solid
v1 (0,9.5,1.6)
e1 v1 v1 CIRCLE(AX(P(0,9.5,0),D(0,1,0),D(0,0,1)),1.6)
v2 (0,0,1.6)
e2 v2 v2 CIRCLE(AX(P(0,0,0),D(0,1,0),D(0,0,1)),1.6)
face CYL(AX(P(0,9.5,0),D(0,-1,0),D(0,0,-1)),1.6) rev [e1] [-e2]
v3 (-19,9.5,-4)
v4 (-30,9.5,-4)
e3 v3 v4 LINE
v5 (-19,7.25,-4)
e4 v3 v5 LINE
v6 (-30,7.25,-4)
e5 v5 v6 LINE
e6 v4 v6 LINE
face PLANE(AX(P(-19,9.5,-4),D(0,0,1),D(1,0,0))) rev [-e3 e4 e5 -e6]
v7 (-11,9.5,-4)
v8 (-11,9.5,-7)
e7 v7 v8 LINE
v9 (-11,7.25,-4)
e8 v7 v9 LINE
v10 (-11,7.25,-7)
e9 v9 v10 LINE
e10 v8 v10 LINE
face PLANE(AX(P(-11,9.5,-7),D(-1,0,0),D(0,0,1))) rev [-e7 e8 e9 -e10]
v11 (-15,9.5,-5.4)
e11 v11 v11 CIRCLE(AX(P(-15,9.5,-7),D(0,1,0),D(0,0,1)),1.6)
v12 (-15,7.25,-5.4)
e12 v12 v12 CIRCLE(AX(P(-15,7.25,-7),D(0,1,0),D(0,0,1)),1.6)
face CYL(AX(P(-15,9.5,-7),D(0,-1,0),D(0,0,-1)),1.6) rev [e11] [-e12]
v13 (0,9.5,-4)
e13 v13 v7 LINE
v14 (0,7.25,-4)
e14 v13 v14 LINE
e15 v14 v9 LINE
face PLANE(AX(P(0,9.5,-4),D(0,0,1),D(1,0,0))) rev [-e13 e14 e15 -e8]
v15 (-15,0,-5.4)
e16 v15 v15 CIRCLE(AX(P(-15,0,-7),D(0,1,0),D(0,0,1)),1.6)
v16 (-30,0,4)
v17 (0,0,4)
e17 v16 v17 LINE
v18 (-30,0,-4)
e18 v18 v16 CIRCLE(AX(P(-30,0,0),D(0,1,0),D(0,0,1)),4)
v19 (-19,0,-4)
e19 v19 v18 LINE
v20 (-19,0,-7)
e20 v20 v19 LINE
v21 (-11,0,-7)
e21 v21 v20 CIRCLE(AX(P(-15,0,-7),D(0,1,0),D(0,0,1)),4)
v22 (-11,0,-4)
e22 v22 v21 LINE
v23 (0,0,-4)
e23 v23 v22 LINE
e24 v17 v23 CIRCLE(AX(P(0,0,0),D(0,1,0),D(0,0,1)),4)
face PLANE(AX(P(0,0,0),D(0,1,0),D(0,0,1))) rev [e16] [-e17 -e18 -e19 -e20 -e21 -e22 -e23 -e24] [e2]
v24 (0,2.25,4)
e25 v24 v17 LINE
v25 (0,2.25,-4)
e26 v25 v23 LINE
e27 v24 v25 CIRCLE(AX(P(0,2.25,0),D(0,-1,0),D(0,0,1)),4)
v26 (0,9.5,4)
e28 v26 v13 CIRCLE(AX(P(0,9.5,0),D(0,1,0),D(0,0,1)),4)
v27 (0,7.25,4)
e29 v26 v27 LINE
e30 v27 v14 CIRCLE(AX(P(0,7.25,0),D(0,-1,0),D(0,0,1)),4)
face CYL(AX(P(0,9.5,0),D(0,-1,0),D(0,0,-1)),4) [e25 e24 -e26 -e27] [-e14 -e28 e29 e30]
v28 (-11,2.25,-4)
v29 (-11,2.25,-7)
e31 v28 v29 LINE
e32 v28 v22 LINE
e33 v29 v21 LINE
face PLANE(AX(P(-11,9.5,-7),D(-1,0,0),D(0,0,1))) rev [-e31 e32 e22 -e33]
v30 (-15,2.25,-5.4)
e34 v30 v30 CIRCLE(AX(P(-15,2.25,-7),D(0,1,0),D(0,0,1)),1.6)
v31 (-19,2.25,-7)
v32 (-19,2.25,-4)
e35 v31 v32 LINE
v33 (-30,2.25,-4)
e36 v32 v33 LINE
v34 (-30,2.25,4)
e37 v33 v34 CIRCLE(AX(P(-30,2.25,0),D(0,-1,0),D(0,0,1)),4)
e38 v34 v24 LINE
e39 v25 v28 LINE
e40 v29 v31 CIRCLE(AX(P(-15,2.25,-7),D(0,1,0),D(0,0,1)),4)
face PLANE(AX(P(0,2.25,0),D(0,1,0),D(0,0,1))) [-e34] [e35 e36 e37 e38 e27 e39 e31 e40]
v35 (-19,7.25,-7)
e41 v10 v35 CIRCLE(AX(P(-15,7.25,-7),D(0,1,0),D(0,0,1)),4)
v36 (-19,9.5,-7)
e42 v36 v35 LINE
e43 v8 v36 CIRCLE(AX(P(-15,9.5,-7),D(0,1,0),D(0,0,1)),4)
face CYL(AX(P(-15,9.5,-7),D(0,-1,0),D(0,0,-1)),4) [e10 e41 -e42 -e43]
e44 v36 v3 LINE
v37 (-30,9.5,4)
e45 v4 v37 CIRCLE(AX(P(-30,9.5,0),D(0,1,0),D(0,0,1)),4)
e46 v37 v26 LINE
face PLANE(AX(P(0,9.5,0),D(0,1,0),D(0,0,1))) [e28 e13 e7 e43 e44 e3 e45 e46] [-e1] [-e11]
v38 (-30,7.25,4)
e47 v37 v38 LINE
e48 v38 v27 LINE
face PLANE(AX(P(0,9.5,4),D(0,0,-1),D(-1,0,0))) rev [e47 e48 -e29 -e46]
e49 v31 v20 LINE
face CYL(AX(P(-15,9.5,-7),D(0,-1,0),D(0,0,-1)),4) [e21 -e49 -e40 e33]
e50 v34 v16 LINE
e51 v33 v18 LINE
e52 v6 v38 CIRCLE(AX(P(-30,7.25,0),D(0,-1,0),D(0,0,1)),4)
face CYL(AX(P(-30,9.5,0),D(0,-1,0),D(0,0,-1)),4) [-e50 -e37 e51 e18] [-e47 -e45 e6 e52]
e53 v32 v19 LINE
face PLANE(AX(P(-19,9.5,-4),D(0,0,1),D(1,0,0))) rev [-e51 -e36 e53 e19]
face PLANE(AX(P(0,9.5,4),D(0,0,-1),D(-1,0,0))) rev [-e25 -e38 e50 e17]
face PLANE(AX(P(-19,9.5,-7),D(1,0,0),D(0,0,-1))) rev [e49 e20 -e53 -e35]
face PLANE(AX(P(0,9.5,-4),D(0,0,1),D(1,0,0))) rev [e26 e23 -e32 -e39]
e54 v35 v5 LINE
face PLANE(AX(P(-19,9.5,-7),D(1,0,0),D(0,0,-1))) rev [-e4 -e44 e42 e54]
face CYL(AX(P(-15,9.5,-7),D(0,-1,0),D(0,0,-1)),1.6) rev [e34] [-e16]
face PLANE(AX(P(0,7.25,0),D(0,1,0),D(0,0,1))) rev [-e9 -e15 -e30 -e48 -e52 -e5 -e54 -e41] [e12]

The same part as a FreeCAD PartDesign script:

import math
import FreeCAD as App
import Part
import Sketcher

V = App.Vector
Q = App.Units.Quantity

doc = App.newDocument("Part")
body = doc.addObject("PartDesign::Body", "Body")

sketch1 = body.newObject("Sketcher::SketchObject", "Sketch")
sketch1.AttachmentSupport = (doc.getObject("XZ_Plane"), [""])
sketch1.MapMode = "FlatFace"
sketch1.addGeometry(Part.LineSegment(V(-30, 4, 0), V(0, 4, 0)), False)
sketch1.addGeometry(Part.ArcOfCircle(Part.Circle(V(0, 0, 0), V(0, 0, 1), 4), math.radians(-90), math.radians(90)), False)
sketch1.addGeometry(Part.LineSegment(V(0, -4, 0), V(-11, -4, 0)), False)
sketch1.addGeometry(Part.LineSegment(V(-11, -4, 0), V(-11, -7, 0)), False)
sketch1.addGeometry(Part.ArcOfCircle(Part.Circle(V(-15, -7, 0), V(0, 0, 1), 4), math.radians(180), math.radians(360)), False)
sketch1.addGeometry(Part.LineSegment(V(-19, -7, 0), V(-19, -4, 0)), False)
sketch1.addGeometry(Part.LineSegment(V(-19, -4, 0), V(-30, -4, 0)), False)
sketch1.addGeometry(Part.ArcOfCircle(Part.Circle(V(-30, 0, 0), V(0, 0, 1), 4), math.radians(90), math.radians(270)), False)
sketch1.addGeometry(Part.Circle(V(0, 0, 0), V(0, 0, 1), 1.6), False)
sketch1.addGeometry(Part.Circle(V(-15, -7, 0), V(0, 0, 1), 1.6), False)
sketch1.addConstraint(Sketcher.Constraint("Tangent", 0, 2, 1, 2))
sketch1.addConstraint(Sketcher.Constraint("Tangent", 1, 1, 2, 1))
sketch1.addConstraint(Sketcher.Constraint("Coincident", 2, 2, 3, 1))
sketch1.addConstraint(Sketcher.Constraint("Tangent", 3, 2, 4, 2))
sketch1.addConstraint(Sketcher.Constraint("Tangent", 4, 1, 5, 1))
sketch1.addConstraint(Sketcher.Constraint("Coincident", 5, 2, 6, 1))
sketch1.addConstraint(Sketcher.Constraint("Tangent", 6, 2, 7, 2))
sketch1.addConstraint(Sketcher.Constraint("Tangent", 7, 1, 0, 1))
sketch1.addConstraint(Sketcher.Constraint("Horizontal", 0))
sketch1.addConstraint(Sketcher.Constraint("Horizontal", 2))
sketch1.addConstraint(Sketcher.Constraint("Vertical", 3))
sketch1.addConstraint(Sketcher.Constraint("Vertical", 5))
sketch1.addConstraint(Sketcher.Constraint("Horizontal", 6))
sketch1.addConstraint(Sketcher.Constraint("Coincident", 1, 3, -1, 1))
sketch1.addConstraint(Sketcher.Constraint("Coincident", 8, 3, -1, 1))
sketch1.addConstraint(Sketcher.Constraint("Coincident", 9, 3, 4, 3))
sketch1.addConstraint(Sketcher.Constraint("Equal", 1, 4))
sketch1.addConstraint(Sketcher.Constraint("Equal", 4, 7))
sketch1.addConstraint(Sketcher.Constraint("Equal", 8, 9))
sketch1.addConstraint(Sketcher.Constraint("Equal", 2, 6))
sketch1.addConstraint(Sketcher.Constraint("Radius", 1, Q("4 mm")))
sketch1.addConstraint(Sketcher.Constraint("Diameter", 8, Q("3.2 mm")))
sketch1.addConstraint(Sketcher.Constraint("DistanceX", 0, 1, 0, 2, Q("30 mm")))
sketch1.addConstraint(Sketcher.Constraint("DistanceY", 3, 2, 3, 1, Q("3 mm")))
pad1 = body.newObject("PartDesign::Pad", "Pad")
pad1.Profile = sketch1
pad1.Length = 9.5
pad1.Reversed = True

sketch2 = body.newObject("Sketcher::SketchObject", "Sketch001")
sketch2.AttachmentSupport = (doc.getObject("XZ_Plane"), [""])
sketch2.MapMode = "FlatFace"
sketch2.AttachmentOffset = App.Placement(V(0, 0, -4.75), App.Rotation())
sketch2.addGeometry(Part.LineSegment(V(0, -4, 0), V(-11, -4, 0)), False)
sketch2.addGeometry(Part.LineSegment(V(-11, -4, 0), V(-11, -7, 0)), False)
sketch2.addGeometry(Part.ArcOfCircle(Part.Circle(V(-15, -7, 0), V(0, 0, 1), 4), math.radians(180), math.radians(360)), False)
sketch2.addGeometry(Part.LineSegment(V(-19, -7, 0), V(-19, -4, 0)), False)
sketch2.addGeometry(Part.LineSegment(V(-19, -4, 0), V(-30, -4, 0)), False)
sketch2.addGeometry(Part.ArcOfCircle(Part.Circle(V(-30, 0, 0), V(0, 0, 1), 4), math.radians(-90), math.radians(90)), False)
sketch2.addGeometry(Part.LineSegment(V(-30, 4, 0), V(0, 4, 0)), False)
sketch2.addGeometry(Part.ArcOfCircle(Part.Circle(V(0, 0, 0), V(0, 0, 1), 4), math.radians(90), math.radians(270)), False)
sketch2.addConstraint(Sketcher.Constraint("Coincident", 0, 2, 1, 1))
sketch2.addConstraint(Sketcher.Constraint("Tangent", 1, 2, 2, 2))
sketch2.addConstraint(Sketcher.Constraint("Tangent", 2, 1, 3, 1))
sketch2.addConstraint(Sketcher.Constraint("Coincident", 3, 2, 4, 1))
sketch2.addConstraint(Sketcher.Constraint("Tangent", 4, 2, 5, 1))
sketch2.addConstraint(Sketcher.Constraint("Tangent", 5, 2, 6, 1))
sketch2.addConstraint(Sketcher.Constraint("Tangent", 6, 2, 7, 1))
sketch2.addConstraint(Sketcher.Constraint("Tangent", 7, 2, 0, 1))
sketch2.addConstraint(Sketcher.Constraint("Horizontal", 0))
sketch2.addConstraint(Sketcher.Constraint("Vertical", 1))
sketch2.addConstraint(Sketcher.Constraint("Vertical", 3))
sketch2.addConstraint(Sketcher.Constraint("Horizontal", 4))
sketch2.addConstraint(Sketcher.Constraint("Horizontal", 6))
sketch2.addConstraint(Sketcher.Constraint("Coincident", 7, 3, -1, 1))
sketch2.addConstraint(Sketcher.Constraint("Equal", 2, 5))
sketch2.addConstraint(Sketcher.Constraint("Equal", 5, 7))
sketch2.addConstraint(Sketcher.Constraint("Equal", 0, 4))
sketch2.addConstraint(Sketcher.Constraint("Radius", 2, Q("4 mm")))
sketch2.addConstraint(Sketcher.Constraint("DistanceX", 0, 2, 0, 1, Q("11 mm")))
sketch2.addConstraint(Sketcher.Constraint("DistanceY", 1, 2, 1, 1, Q("3 mm")))
pocket1 = body.newObject("PartDesign::Pocket", "Pocket")
pocket1.Profile = sketch2
pocket1.Type = "TwoLengths"
pocket1.Length = 2.5
pocket1.Length2 = 2.5

doc.recompute()
